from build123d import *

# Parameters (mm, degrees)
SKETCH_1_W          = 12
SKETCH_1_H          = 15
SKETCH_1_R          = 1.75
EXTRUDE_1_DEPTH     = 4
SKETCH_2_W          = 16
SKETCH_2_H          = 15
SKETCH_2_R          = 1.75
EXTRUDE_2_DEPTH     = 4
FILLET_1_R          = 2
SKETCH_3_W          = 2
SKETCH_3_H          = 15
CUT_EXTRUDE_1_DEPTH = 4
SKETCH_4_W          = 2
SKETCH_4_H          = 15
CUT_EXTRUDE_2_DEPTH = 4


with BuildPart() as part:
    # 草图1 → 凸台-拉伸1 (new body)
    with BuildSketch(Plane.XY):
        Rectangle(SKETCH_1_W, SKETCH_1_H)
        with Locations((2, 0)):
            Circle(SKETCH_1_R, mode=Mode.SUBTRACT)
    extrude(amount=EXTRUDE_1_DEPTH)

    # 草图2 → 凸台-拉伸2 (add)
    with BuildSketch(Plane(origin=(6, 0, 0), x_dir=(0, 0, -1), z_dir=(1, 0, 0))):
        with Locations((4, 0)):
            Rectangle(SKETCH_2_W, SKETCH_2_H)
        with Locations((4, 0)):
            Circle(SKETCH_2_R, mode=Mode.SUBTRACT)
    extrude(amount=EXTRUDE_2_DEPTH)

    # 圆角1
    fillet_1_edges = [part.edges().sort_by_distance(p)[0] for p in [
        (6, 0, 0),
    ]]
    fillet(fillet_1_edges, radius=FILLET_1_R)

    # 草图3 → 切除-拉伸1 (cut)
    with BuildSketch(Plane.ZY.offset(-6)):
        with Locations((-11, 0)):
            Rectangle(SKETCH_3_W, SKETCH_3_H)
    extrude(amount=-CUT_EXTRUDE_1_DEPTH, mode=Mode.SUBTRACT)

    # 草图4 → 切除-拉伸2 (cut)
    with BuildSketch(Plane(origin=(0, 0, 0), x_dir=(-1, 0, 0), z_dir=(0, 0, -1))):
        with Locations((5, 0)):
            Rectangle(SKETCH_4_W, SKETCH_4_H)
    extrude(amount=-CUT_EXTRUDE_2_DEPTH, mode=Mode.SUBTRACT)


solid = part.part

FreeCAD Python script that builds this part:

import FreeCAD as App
import Part
import Sketcher
from FreeCAD import Vector
Q = App.Units.Quantity


def edges_at(feature, points):
    """Names of the edges that pass closest to the given points."""
    edges = feature.Shape.Edges
    near = lambda p: min(range(len(edges)), key=lambda i: edges[i].distToShape(Part.Vertex(*p))[0])
    return sorted({f"Edge{near(p) + 1}" for p in points})

doc = App.newDocument("Part")
params = doc.addObject("Spreadsheet::Sheet", "Params")
for row, (alias, value) in enumerate([
    ("sketch1_diameter", "3.5 mm"),
    ("sketch1_width", "12 mm"),
    ("sketch1_height", "15 mm"),
    ("pad1_length", "4 mm"),
    ("sketch2_diameter", "3.5 mm"),
    ("sketch2_width", "15 mm"),
    ("sketch2_height", "16 mm"),
    ("pad2_length", "4 mm"),
    ("fillet_radius", "2 mm"),
    ("sketch3_width", "15 mm"),
    ("sketch3_height", "2 mm"),
    ("pocket1_length", "4 mm"),
    ("sketch4_width", "2 mm"),
    ("sketch4_height", "15 mm"),
    ("pocket2_length", "4 mm"),
], start=1):
    params.set(f"A{row}", alias)
    params.set(f"B{row}", "=" + value)
    params.setAlias(f"B{row}", alias)

body = doc.addObject("PartDesign::Body", "Body")

# Sketch on XY plane
sketch1 = doc.addObject("Sketcher::SketchObject", "Sketch")
body.addObject(sketch1)
sketch1.AttachmentSupport = (doc.XY_Plane, [""])
sketch1.MapMode = "FlatFace"
sketch1.addGeometry(Part.LineSegment(Vector(-6, 7.5, 0), Vector(-6, -7.5, 0)), False)
sketch1.addGeometry(Part.LineSegment(Vector(-6, -7.5, 0), Vector(6, -7.5, 0)), False)
sketch1.addGeometry(Part.LineSegment(Vector(6, -7.5, 0), Vector(6, 7.5, 0)), False)
sketch1.addGeometry(Part.LineSegment(Vector(6, 7.5, 0), Vector(-6, 7.5, 0)), False)
sketch1.addGeometry(Part.Circle(Vector(2, 0, 0), Vector(0, 0, 1), 1.75), False)
sketch1.addConstraint(Sketcher.Constraint("Coincident", 0, 2, 1, 1))
sketch1.addConstraint(Sketcher.Constraint("Coincident", 1, 2, 2, 1))
sketch1.addConstraint(Sketcher.Constraint("Coincident", 2, 2, 3, 1))
sketch1.addConstraint(Sketcher.Constraint("Coincident", 3, 2, 0, 1))
sketch1.addConstraint(Sketcher.Constraint("Vertical", 0))
sketch1.addConstraint(Sketcher.Constraint("Horizontal", 1))
sketch1.addConstraint(Sketcher.Constraint("Vertical", 2))
sketch1.addConstraint(Sketcher.Constraint("Horizontal", 3))
sketch1.addConstraint(Sketcher.Constraint("Symmetric", 0, 2, 2, 2, -1, 1))
sketch1.addConstraint(Sketcher.Constraint("PointOnObject", 4, 3, -1))
sketch1.addConstraint(Sketcher.Constraint("Diameter", 4, Q("3.5 mm")))
sketch1.addConstraint(Sketcher.Constraint("DistanceX", 1, 1, 1, 2, Q("12 mm")))
sketch1.addConstraint(Sketcher.Constraint("DistanceY", 0, 2, 0, 1, Q("15 mm")))
sketch1.addConstraint(Sketcher.Constraint("DistanceX", -1, 1, 4, 3, Q("2 mm")))
sketch1.setExpression("Constraints[10]", "Params.sketch1_diameter")
sketch1.setExpression("Constraints[11]", "Params.sketch1_width")
sketch1.setExpression("Constraints[12]", "Params.sketch1_height")
pad1 = doc.addObject("PartDesign::Pad", "Pad")
body.addObject(pad1)
pad1.Profile = sketch1
pad1.setExpression("Length", "Params.pad1_length")

# Sketch on YZ plane
sketch2 = doc.addObject("Sketcher::SketchObject", "Sketch001")
body.addObject(sketch2)
sketch2.AttachmentSupport = (doc.YZ_Plane, [""])
sketch2.MapMode = "FlatFace"
sketch2.AttachmentOffset = App.Placement(Vector(0, 0, 6), App.Rotation())
sketch2.addGeometry(Part.LineSegment(Vector(7.5, 4, 0), Vector(-7.5, 4, 0)), False)
sketch2.addGeometry(Part.LineSegment(Vector(-7.5, 4, 0), Vector(-7.5, -12, 0)), False)
sketch2.addGeometry(Part.LineSegment(Vector(-7.5, -12, 0), Vector(7.5, -12, 0)), False)
sketch2.addGeometry(Part.LineSegment(Vector(7.5, -12, 0), Vector(7.5, 4, 0)), False)
sketch2.addGeometry(Part.Circle(Vector(0, -4, 0), Vector(0, 0, 1), 1.75), False)
sketch2.addConstraint(Sketcher.Constraint("Coincident", 0, 2, 1, 1))
sketch2.addConstraint(Sketcher.Constraint("Coincident", 1, 2, 2, 1))
sketch2.addConstraint(Sketcher.Constraint("Coincident", 2, 2, 3, 1))
sketch2.addConstraint(Sketcher.Constraint("Coincident", 3, 2, 0, 1))
sketch2.addConstraint(Sketcher.Constraint("Horizontal", 0))
sketch2.addConstraint(Sketcher.Constraint("Vertical", 1))
sketch2.addConstraint(Sketcher.Constraint("Horizontal", 2))
sketch2.addConstraint(Sketcher.Constraint("Vertical", 3))
sketch2.addConstraint(Sketcher.Constraint("PointOnObject", 4, 3, -2))
sketch2.addConstraint(Sketcher.Constraint("Diameter", 4, Q("3.5 mm")))
sketch2.addConstraint(Sketcher.Constraint("DistanceX", 0, 2, 0, 1, Q("15 mm")))
sketch2.addConstraint(Sketcher.Constraint("DistanceY", 1, 2, 1, 1, Q("16 mm")))
sketch2.addConstraint(Sketcher.Constraint("DistanceY", 4, 3, -1, 1, Q("4 mm")))
sketch2.addConstraint(Sketcher.Constraint("DistanceY", -1, 1, 0, 2, Q("4 mm")))
sketch2.addConstraint(Sketcher.Constraint("DistanceX", 0, 2, -1, 1, Q("7.5 mm")))
sketch2.setExpression("Constraints[9]", "Params.sketch2_diameter")
sketch2.setExpression("Constraints[10]", "Params.sketch2_width")
sketch2.setExpression("Constraints[11]", "Params.sketch2_height")
pad2 = doc.addObject("PartDesign::Pad", "Pad001")
body.addObject(pad2)
pad2.Profile = sketch2
pad2.setExpression("Length", "Params.pad2_length")
doc.recompute()

fillet = doc.addObject("PartDesign::Fillet", "Fillet")
body.addObject(fillet)
fillet.Base = (pad2, edges_at(pad2, [(6, 0, 0)]))
fillet.setExpression("Radius", "Params.fillet_radius")

# Sketch on YZ plane
sketch3 = doc.addObject("Sketcher::SketchObject", "Sketch002")
body.addObject(sketch3)
sketch3.AttachmentSupport = (doc.YZ_Plane, [""])
sketch3.MapMode = "FlatFace"
sketch3.AttachmentOffset = App.Placement(Vector(0, 0, 6), App.Rotation())
sketch3.addGeometry(Part.LineSegment(Vector(7.5, -12, 0), Vector(-7.5, -12, 0)), False)
sketch3.addGeometry(Part.LineSegment(Vector(-7.5, -12, 0), Vector(-7.5, -10, 0)), False)
sketch3.addGeometry(Part.LineSegment(Vector(-7.5, -10, 0), Vector(7.5, -10, 0)), False)
sketch3.addGeometry(Part.LineSegment(Vector(7.5, -10, 0), Vector(7.5, -12, 0)), False)
sketch3.addConstraint(Sketcher.Constraint("Coincident", 0, 2, 1, 1))
sketch3.addConstraint(Sketcher.Constraint("Coincident", 1, 2, 2, 1))
sketch3.addConstraint(Sketcher.Constraint("Coincident", 2, 2, 3, 1))
sketch3.addConstraint(Sketcher.Constraint("Coincident", 3, 2, 0, 1))
sketch3.addConstraint(Sketcher.Constraint("Horizontal", 0))
sketch3.addConstraint(Sketcher.Constraint("Vertical", 1))
sketch3.addConstraint(Sketcher.Constraint("Horizontal", 2))
sketch3.addConstraint(Sketcher.Constraint("Vertical", 3))
sketch3.addConstraint(Sketcher.Constraint("DistanceX", 0, 2, 0, 1, Q("15 mm")))
sketch3.addConstraint(Sketcher.Constraint("DistanceY", 1, 1, 1, 2, Q("2 mm")))
sketch3.addConstraint(Sketcher.Constraint("DistanceY", 0, 2, -1, 1, Q("12 mm")))
sketch3.addConstraint(Sketcher.Constraint("DistanceX", 0, 2, -1, 1, Q("7.5 mm")))
sketch3.setExpression("Constraints[8]", "Params.sketch3_width")
sketch3.setExpression("Constraints[9]", "Params.sketch3_height")
pocket1 = doc.addObject("PartDesign::Pocket", "Pocket")
body.addObject(pocket1)
pocket1.Profile = sketch3
pocket1.setExpression("Length", "Params.pocket1_length")
pocket1.Reversed = True

# Sketch on XY plane
sketch4 = doc.addObject("Sketcher::SketchObject", "Sketch003")
body.addObject(sketch4)
sketch4.AttachmentSupport = (doc.XY_Plane, [""])
sketch4.MapMode = "FlatFace"
sketch4.addGeometry(Part.LineSegment(Vector(-4, 7.5, 0), Vector(-4, -7.5, 0)), False)
sketch4.addGeometry(Part.LineSegment(Vector(-4, -7.5, 0), Vector(-6, -7.5, 0)), False)
sketch4.addGeometry(Part.LineSegment(Vector(-6, -7.5, 0), Vector(-6, 7.5, 0)), False)
sketch4.addGeometry(Part.LineSegment(Vector(-6, 7.5, 0), Vector(-4, 7.5, 0)), False)
sketch4.addConstraint(Sketcher.Constraint("Coincident", 0, 2, 1, 1))
sketch4.addConstraint(Sketcher.Constraint("Coincident", 1, 2, 2, 1))
sketch4.addConstraint(Sketcher.Constraint("Coincident", 2, 2, 3, 1))
sketch4.addConstraint(Sketcher.Constraint("Coincident", 3, 2, 0, 1))
sketch4.addConstraint(Sketcher.Constraint("Vertical", 0))
sketch4.addConstraint(Sketcher.Constraint("Horizontal", 1))
sketch4.addConstraint(Sketcher.Constraint("Vertical", 2))
sketch4.addConstraint(Sketcher.Constraint("Horizontal", 3))
sketch4.addConstraint(Sketcher.Constraint("DistanceX", 1, 2, 1, 1, Q("2 mm")))
sketch4.addConstraint(Sketcher.Constraint("DistanceY", 0, 2, 0, 1, Q("15 mm")))
sketch4.addConstraint(Sketcher.Constraint("DistanceX", 0, 2, -1, 1, Q("4 mm")))
sketch4.addConstraint(Sketcher.Constraint("DistanceY", 0, 2, -1, 1, Q("7.5 mm")))
sketch4.setExpression("Constraints[8]", "Params.sketch4_width")
sketch4.setExpression("Constraints[9]", "Params.sketch4_height")
pocket2 = doc.addObject("PartDesign::Pocket", "Pocket001")
body.addObject(pocket2)
pocket2.Profile = sketch4
pocket2.setExpression("Length", "Params.pocket2_length")
pocket2.Reversed = True

doc.recompute()
